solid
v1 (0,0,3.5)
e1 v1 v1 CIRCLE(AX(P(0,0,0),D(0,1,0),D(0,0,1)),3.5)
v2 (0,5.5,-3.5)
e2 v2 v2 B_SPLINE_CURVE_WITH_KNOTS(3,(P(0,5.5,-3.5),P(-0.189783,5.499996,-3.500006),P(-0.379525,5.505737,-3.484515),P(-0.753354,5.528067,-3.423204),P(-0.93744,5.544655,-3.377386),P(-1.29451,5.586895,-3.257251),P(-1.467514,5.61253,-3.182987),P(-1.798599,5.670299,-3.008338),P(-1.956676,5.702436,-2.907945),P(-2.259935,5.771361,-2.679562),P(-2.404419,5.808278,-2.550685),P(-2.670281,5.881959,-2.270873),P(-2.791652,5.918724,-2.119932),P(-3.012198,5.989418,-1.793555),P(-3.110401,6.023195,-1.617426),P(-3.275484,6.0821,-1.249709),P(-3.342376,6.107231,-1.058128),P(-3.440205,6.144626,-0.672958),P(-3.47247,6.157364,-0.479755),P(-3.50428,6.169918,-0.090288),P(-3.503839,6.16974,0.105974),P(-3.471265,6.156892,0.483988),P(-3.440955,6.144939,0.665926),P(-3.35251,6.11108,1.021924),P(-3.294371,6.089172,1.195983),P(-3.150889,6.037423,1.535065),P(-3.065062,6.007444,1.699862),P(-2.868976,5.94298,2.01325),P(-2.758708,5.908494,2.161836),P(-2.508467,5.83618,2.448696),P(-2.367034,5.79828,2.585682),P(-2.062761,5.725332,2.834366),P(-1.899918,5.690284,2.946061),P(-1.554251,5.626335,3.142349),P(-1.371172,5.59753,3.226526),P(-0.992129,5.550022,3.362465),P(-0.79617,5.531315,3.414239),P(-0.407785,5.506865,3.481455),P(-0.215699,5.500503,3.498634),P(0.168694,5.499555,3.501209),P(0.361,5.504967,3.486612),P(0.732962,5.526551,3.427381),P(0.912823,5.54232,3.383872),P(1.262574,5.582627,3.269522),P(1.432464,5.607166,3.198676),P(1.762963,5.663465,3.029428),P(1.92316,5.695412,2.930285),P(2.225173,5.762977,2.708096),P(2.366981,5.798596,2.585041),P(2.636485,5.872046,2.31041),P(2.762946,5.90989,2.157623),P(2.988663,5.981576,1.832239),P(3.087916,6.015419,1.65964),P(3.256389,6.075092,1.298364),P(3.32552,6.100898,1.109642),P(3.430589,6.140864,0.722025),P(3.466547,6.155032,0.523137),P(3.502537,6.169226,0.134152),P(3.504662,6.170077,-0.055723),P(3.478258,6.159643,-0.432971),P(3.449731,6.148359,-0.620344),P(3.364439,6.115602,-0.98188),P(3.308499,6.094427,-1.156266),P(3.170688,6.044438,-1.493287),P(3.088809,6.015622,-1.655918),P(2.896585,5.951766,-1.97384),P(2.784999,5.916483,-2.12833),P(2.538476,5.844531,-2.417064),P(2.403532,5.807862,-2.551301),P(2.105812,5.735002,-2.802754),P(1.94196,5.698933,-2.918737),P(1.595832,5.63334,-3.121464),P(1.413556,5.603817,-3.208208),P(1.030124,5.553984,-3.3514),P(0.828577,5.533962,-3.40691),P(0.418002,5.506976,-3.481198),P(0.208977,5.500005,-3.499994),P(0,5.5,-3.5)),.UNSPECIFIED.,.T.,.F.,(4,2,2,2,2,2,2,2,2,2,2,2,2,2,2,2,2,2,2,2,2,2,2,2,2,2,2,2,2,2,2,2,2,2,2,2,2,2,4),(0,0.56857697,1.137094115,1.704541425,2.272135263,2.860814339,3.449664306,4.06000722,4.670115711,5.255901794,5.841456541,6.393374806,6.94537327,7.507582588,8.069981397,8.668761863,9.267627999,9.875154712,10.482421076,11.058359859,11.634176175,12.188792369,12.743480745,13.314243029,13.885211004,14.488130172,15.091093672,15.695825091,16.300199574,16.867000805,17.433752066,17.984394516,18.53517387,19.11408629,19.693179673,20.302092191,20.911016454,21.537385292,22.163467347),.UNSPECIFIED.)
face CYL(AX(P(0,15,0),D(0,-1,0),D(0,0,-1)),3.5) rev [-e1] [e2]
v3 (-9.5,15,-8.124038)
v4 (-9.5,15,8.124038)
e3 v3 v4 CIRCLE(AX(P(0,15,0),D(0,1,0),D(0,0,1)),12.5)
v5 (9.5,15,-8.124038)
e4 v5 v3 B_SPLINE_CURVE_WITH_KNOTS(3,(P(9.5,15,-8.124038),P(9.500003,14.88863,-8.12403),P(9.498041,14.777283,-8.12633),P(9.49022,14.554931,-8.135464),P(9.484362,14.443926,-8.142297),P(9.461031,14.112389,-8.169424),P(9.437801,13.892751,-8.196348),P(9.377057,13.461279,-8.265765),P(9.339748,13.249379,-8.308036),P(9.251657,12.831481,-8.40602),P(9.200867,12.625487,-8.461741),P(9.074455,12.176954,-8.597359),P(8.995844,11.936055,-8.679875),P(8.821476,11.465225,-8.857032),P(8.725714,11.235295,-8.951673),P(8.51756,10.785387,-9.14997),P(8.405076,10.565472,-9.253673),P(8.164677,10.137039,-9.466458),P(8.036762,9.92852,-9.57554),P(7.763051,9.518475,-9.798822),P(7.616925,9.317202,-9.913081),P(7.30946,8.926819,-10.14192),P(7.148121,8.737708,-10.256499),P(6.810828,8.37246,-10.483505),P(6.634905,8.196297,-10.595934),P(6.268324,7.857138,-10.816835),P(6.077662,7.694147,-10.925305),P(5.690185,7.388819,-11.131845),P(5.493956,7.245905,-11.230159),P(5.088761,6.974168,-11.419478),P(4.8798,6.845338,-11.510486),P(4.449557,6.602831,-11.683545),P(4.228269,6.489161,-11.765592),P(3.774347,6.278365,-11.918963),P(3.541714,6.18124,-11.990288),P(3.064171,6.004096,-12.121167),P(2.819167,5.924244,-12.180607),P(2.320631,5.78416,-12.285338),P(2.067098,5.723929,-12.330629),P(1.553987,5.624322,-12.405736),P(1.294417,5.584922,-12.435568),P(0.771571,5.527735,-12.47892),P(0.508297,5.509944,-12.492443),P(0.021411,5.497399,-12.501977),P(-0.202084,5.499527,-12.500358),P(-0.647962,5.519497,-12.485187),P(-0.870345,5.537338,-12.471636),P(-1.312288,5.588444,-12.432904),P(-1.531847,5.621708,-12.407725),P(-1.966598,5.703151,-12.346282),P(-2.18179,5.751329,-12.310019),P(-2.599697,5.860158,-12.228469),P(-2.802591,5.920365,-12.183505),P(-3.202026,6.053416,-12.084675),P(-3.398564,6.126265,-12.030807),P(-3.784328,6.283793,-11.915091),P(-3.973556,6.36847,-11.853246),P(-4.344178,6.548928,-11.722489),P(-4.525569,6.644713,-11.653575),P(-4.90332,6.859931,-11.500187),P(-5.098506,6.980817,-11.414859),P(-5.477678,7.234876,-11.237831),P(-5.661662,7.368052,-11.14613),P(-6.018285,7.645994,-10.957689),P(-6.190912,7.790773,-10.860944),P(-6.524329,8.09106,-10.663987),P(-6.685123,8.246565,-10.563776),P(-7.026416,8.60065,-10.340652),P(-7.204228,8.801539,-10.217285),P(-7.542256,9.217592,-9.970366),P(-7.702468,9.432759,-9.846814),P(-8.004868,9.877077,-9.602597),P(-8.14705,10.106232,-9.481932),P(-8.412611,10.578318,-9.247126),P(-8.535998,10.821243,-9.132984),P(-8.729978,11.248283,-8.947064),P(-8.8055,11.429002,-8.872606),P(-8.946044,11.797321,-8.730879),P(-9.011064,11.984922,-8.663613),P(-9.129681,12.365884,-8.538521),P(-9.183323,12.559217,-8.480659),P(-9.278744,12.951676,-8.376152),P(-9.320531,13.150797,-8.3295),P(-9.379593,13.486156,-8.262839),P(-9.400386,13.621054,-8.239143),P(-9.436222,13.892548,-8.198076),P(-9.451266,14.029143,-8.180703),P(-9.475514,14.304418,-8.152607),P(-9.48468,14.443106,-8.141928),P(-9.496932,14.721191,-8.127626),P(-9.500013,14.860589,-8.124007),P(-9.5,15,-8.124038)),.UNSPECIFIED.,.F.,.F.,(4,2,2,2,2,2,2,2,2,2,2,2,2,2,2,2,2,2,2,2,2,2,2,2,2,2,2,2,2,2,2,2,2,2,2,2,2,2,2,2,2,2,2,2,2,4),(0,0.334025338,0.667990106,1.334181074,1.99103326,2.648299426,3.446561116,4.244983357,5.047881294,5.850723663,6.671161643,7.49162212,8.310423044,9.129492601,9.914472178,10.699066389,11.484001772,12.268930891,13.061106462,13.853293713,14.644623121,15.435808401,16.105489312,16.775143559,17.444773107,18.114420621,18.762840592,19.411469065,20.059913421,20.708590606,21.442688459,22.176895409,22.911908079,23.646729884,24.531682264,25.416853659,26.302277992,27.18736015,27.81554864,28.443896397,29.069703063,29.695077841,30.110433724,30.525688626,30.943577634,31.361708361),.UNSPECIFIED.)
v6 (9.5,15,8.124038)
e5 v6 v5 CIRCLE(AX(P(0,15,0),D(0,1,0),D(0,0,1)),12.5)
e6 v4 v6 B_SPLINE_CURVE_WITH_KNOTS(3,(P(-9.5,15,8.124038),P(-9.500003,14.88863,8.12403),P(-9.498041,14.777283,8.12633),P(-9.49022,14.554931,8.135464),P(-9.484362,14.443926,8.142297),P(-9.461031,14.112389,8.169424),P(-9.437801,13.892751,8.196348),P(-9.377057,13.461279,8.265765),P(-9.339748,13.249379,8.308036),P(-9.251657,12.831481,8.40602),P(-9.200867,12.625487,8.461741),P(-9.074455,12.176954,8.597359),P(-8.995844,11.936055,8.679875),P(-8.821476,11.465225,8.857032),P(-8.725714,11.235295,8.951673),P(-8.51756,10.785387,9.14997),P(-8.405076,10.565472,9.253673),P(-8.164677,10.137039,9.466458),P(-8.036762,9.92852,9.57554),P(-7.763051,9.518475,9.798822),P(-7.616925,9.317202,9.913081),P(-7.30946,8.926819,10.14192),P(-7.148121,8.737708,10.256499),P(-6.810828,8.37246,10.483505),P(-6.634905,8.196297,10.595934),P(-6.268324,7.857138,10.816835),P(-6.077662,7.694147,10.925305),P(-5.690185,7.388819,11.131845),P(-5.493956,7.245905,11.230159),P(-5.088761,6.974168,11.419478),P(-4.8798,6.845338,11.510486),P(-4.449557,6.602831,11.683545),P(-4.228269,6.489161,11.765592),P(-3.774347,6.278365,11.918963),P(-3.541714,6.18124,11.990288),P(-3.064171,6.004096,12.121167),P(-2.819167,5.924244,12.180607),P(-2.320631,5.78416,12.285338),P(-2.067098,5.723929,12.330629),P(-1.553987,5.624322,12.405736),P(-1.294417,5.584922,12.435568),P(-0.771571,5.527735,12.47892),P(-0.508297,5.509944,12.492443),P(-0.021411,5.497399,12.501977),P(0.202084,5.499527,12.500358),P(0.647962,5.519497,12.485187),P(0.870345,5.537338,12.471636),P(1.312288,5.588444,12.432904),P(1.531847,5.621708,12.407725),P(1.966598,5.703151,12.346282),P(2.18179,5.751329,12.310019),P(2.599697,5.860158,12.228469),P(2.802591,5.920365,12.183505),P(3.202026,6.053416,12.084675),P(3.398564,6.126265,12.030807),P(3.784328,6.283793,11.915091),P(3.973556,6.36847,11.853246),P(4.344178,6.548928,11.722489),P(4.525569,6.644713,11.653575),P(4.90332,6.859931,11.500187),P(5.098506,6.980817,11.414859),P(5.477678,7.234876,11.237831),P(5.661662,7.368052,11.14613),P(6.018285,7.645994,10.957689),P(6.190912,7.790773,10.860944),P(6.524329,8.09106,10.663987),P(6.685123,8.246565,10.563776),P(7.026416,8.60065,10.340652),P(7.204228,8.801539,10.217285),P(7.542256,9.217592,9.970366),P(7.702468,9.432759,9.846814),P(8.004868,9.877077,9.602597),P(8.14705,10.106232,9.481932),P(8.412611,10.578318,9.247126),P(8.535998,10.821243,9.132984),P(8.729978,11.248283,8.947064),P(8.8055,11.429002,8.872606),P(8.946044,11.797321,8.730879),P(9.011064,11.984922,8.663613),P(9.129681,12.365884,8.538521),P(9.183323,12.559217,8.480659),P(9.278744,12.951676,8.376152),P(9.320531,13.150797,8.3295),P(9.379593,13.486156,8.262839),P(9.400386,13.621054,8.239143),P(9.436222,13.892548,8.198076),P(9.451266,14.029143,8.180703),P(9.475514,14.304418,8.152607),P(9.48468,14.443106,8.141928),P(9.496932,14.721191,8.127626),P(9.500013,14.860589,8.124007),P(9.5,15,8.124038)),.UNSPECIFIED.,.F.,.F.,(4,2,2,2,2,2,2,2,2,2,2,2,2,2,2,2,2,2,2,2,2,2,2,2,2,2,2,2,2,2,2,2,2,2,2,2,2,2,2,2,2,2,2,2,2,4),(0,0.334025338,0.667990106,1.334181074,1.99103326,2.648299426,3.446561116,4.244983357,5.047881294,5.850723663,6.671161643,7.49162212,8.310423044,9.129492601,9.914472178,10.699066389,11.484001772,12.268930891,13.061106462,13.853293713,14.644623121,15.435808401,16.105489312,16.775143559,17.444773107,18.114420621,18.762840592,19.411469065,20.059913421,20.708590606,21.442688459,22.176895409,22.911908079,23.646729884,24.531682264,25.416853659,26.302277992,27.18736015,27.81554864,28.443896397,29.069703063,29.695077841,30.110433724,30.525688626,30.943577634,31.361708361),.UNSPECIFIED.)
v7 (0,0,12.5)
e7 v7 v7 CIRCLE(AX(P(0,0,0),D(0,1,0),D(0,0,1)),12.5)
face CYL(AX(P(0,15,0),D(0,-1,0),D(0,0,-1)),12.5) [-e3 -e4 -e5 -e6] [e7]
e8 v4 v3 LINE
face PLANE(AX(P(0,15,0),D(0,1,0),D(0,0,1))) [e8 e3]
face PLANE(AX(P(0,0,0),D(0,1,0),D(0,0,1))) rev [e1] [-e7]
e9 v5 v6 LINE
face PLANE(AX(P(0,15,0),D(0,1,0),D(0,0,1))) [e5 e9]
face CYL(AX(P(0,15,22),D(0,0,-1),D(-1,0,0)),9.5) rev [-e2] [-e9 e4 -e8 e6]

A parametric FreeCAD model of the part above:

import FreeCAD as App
import Part
import Sketcher
from FreeCAD import Vector
Q = App.Units.Quantity

doc = App.newDocument("Part")
params = doc.addObject("Spreadsheet::Sheet", "Params")
for row, (alias, value) in enumerate([
    ("sketch1_diameter", "25 mm"),
    ("sketch1_diameter2", "7 mm"),
    ("pad1_length", "15 mm"),
    ("sketch2_diameter", "19 mm"),
], start=1):
    params.set(f"A{row}", alias)
    params.set(f"B{row}", "=" + value)
    params.setAlias(f"B{row}", alias)

body = doc.addObject("PartDesign::Body", "Body")

sketch1 = doc.addObject("Sketcher::SketchObject", "Sketch")
body.addObject(sketch1)
sketch1.AttachmentSupport = (doc.XZ_Plane, [""])
sketch1.MapMode = "FlatFace"
sketch1.addGeometry(Part.Circle(Vector(0, 0, 0), Vector(0, 0, 1), 12.5), False)
sketch1.addGeometry(Part.Circle(Vector(0, 0, 0), Vector(0, 0, 1), 3.5), False)
sketch1.addConstraint(Sketcher.Constraint("Coincident", 0, 3, -1, 1))
sketch1.addConstraint(Sketcher.Constraint("Coincident", 1, 3, -1, 1))
sketch1.addConstraint(Sketcher.Constraint("Diameter", 0, Q("25 mm")))
sketch1.addConstraint(Sketcher.Constraint("Diameter", 1, Q("7 mm")))
sketch1.setExpression("Constraints[2]", "Params.sketch1_diameter")
sketch1.setExpression("Constraints[3]", "Params.sketch1_diameter2")
pad1 = doc.addObject("PartDesign::Pad", "Pad")
body.addObject(pad1)
pad1.Profile = sketch1
pad1.setExpression("Length", "Params.pad1_length")
pad1.Reversed = True

sketch2 = doc.addObject("Sketcher::SketchObject", "Sketch001")
body.addObject(sketch2)
sketch2.AttachmentSupport = (doc.XY_Plane, [""])
sketch2.MapMode = "FlatFace"
sketch2.addGeometry(Part.Circle(Vector(0, 15, 0), Vector(0, 0, 1), 10), False)
sketch2.addConstraint(Sketcher.Constraint("PointOnObject", 0, 3, -2))
sketch2.addConstraint(Sketcher.Constraint("Diameter", 0, Q("19 mm")))
sketch2.addConstraint(Sketcher.Constraint("DistanceY", -1, 1, 0, 3, Q("15 mm")))
sketch2.setExpression("Constraints[1]", "Params.sketch2_diameter")
pocket1 = doc.addObject("PartDesign::Pocket", "Pocket")
body.addObject(pocket1)
pocket1.Profile = sketch2
pocket1.Type = "ThroughAll"
pocket1.Midplane = True

doc.recompute()
